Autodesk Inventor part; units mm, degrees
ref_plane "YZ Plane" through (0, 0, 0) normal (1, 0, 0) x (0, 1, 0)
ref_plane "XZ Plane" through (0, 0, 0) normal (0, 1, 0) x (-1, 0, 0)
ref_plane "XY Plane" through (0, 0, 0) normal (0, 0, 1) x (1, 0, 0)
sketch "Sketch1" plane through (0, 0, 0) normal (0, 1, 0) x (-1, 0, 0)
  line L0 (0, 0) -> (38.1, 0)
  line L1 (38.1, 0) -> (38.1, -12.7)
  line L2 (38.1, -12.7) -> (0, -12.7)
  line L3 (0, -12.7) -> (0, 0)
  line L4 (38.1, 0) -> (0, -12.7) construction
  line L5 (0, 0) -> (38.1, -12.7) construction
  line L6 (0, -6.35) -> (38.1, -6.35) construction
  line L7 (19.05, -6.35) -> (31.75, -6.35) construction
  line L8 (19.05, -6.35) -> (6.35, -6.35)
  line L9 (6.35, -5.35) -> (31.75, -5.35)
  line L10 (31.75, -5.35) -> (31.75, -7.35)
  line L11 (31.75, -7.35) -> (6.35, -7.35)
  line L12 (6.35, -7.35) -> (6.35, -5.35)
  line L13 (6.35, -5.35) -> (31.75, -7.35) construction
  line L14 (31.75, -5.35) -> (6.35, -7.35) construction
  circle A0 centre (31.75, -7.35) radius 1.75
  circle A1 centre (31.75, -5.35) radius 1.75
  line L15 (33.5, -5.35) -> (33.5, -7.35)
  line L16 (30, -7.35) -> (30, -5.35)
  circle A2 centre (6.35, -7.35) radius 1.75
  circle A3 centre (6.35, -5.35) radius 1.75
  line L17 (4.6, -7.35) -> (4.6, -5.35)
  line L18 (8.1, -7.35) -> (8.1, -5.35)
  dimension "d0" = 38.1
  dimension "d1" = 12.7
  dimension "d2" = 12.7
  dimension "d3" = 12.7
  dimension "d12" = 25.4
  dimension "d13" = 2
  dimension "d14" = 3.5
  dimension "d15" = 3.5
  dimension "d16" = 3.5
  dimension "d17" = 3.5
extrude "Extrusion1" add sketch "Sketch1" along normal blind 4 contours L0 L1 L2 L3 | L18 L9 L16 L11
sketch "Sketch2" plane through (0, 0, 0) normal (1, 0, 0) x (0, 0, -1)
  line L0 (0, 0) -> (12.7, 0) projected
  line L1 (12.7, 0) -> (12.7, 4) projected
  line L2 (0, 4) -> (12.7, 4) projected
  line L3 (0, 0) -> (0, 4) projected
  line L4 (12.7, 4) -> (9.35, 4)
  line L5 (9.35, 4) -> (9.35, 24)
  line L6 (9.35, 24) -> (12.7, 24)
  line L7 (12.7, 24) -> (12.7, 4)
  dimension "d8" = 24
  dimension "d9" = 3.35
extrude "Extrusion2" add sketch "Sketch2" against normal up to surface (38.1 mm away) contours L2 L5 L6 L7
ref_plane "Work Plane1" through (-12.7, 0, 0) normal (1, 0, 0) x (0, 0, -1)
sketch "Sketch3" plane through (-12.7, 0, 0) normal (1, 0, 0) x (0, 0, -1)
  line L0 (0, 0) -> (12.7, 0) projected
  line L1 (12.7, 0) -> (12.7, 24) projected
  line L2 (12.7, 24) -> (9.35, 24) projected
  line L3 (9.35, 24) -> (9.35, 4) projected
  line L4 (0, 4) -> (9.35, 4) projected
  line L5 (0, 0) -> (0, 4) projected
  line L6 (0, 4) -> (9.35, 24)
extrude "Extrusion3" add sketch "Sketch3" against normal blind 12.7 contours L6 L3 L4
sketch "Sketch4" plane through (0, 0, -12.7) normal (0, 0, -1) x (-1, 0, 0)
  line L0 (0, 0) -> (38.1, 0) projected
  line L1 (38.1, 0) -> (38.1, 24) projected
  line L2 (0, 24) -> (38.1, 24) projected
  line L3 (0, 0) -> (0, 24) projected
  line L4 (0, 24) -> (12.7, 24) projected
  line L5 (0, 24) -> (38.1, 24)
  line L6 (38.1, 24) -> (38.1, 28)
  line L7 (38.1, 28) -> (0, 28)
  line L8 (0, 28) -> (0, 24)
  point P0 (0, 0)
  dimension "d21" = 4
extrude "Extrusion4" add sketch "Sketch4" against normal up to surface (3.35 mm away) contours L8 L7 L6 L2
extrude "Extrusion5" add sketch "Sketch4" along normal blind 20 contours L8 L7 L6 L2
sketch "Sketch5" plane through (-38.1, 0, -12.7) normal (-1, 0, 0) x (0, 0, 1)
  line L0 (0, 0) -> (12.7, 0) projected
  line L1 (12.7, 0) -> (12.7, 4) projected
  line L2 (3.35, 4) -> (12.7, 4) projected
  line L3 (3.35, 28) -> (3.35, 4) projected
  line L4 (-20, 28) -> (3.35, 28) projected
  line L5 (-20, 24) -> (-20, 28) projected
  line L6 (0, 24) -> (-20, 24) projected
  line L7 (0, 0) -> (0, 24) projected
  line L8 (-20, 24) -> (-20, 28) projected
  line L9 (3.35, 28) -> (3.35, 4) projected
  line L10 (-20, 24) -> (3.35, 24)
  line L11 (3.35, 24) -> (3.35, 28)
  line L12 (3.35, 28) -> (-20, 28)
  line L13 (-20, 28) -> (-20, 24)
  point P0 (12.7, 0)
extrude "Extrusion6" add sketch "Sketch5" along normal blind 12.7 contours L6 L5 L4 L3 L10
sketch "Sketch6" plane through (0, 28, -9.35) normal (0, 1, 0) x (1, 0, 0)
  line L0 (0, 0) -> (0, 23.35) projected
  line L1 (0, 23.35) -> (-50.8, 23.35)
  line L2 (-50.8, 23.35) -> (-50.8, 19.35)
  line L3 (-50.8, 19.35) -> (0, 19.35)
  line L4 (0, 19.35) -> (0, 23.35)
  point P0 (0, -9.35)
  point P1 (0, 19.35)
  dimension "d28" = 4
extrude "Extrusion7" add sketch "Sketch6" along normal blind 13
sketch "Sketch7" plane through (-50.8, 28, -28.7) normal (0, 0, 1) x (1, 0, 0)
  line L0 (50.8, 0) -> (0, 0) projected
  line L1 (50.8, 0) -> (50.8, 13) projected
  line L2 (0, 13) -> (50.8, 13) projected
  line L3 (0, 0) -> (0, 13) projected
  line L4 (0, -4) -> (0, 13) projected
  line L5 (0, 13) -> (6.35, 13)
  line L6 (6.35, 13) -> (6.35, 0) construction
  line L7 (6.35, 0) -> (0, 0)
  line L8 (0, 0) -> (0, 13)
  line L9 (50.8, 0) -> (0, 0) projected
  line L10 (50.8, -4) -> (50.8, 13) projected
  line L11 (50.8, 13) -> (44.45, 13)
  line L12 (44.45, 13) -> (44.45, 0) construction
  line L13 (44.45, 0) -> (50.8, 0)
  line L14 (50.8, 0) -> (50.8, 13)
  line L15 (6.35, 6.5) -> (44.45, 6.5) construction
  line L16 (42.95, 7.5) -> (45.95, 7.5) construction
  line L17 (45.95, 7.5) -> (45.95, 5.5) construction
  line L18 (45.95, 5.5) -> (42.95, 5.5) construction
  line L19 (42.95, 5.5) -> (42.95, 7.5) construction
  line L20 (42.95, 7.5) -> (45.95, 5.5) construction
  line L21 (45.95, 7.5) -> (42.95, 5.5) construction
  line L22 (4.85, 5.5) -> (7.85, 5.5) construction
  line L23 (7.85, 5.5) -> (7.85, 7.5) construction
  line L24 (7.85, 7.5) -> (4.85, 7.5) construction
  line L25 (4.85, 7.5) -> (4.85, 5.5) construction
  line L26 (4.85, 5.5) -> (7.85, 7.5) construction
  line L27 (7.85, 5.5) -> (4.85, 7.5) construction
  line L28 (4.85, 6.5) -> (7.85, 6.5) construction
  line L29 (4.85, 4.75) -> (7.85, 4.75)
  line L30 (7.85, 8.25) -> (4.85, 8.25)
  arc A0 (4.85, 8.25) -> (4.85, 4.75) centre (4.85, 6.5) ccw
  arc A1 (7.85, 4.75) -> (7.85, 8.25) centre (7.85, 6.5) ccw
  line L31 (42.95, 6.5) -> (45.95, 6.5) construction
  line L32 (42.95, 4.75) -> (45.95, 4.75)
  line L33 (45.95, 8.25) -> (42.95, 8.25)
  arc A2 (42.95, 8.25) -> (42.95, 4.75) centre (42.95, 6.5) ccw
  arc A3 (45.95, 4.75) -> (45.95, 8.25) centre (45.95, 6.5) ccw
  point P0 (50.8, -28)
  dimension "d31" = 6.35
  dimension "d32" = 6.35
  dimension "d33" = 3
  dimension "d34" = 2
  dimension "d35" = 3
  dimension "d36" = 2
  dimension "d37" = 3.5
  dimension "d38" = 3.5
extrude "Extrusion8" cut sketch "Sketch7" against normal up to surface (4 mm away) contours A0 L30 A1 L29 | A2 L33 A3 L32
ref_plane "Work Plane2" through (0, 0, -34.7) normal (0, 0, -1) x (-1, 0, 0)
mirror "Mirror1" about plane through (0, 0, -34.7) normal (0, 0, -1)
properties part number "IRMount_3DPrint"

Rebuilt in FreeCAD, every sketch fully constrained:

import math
import FreeCAD as App
import Part
import Sketcher

V = App.Vector
Q = App.Units.Quantity


def add_polygon(sketch, points):
    """Adds a closed chain of lines whose ends are joined by coincident constraints."""
    first, n = sketch.GeometryCount, len(points)
    for a, b in zip(points, points[1:] + points[:1]):
        sketch.addGeometry(Part.LineSegment(App.Vector(*a, 0), App.Vector(*b, 0)), False)
    for i in range(n):
        sketch.addConstraint(Sketcher.Constraint("Coincident", first + i, 2, first + (i + 1) % n, 1))

doc = App.newDocument("Part")
body = doc.addObject("PartDesign::Body", "Body")
body.AllowCompound = True

sketch1 = doc.addObject("Sketcher::SketchObject", "Sketch")
body.addObject(sketch1)
sketch1.AttachmentSupport = (doc.XZ_Plane, [""])
sketch1.MapMode = "FlatFace"
add_polygon(sketch1, [(-38.1, 0), (0, 0), (0, -12.7), (-38.1, -12.7)])
sketch1.addGeometry(Part.ArcOfCircle(Part.Circle(V(-31.8, -7.3, 0), V(0, 0, 1), 1.8), math.radians(180), math.radians(360)), False)
sketch1.addGeometry(Part.LineSegment(V(-30, -7.3, 0), V(-30, -5.3, 0)), False)
sketch1.addGeometry(Part.ArcOfCircle(Part.Circle(V(-31.8, -5.3, 0), V(0, 0, 1), 1.8), math.radians(0), math.radians(180)), False)
sketch1.addGeometry(Part.LineSegment(V(-33.5, -5.3, 0), V(-33.5, -7.3, 0)), False)
sketch1.addGeometry(Part.ArcOfCircle(Part.Circle(V(-6.3, -5.3, 0), V(0, 0, 1), 1.8), math.radians(0), math.radians(180)), False)
sketch1.addGeometry(Part.LineSegment(V(-8.1, -5.3, 0), V(-8.1, -7.3, 0)), False)
sketch1.addGeometry(Part.ArcOfCircle(Part.Circle(V(-6.3, -7.3, 0), V(0, 0, 1), 1.8), math.radians(180), math.radians(360)), False)
sketch1.addGeometry(Part.LineSegment(V(-4.6, -7.3, 0), V(-4.6, -5.3, 0)), False)
sketch1.addConstraint([
    Sketcher.Constraint("Tangent", 4, 2, 5, 1),
    Sketcher.Constraint("Tangent", 5, 2, 6, 1),
    Sketcher.Constraint("Tangent", 6, 2, 7, 1),
    Sketcher.Constraint("Tangent", 7, 2, 4, 1),
    Sketcher.Constraint("Tangent", 8, 2, 9, 1),
    Sketcher.Constraint("Tangent", 9, 2, 10, 1),
    Sketcher.Constraint("Tangent", 10, 2, 11, 1),
    Sketcher.Constraint("Tangent", 11, 2, 8, 1),
    Sketcher.Constraint("Horizontal", 0),
    Sketcher.Constraint("Vertical", 1),
    Sketcher.Constraint("Horizontal", 2),
    Sketcher.Constraint("Vertical", 3),
    Sketcher.Constraint("Vertical", 5),
    Sketcher.Constraint("Vertical", 7),
    Sketcher.Constraint("Vertical", 9),
    Sketcher.Constraint("Vertical", 11),
    Sketcher.Constraint("Coincident", 0, 2, -1, 1),
    Sketcher.Constraint("Equal", 6, 8),
    Sketcher.Constraint("Horizontal", 6, 3, 8, 3),
    Sketcher.Constraint("Horizontal", 4, 3, 10, 3),
    Sketcher.Constraint("DistanceX", 0, 1, 0, 2, Q("1.5 in")),
    Sketcher.Constraint("DistanceY", 1, 2, 1, 1, Q("0.5 in")),
    Sketcher.Constraint("DistanceX", 6, 3, 8, 3, Q("1 in")),
    Sketcher.Constraint("Radius", 4, Q("0.0689 in")),
    Sketcher.Constraint("DistanceY", 5, 1, 5, 2, Q("2 mm")),
    Sketcher.Constraint("DistanceX", 4, 3, -1, 1, Q("1.25 in")),
    Sketcher.Constraint("DistanceY", 4, 3, -1, 1, Q("7.35 mm")),
])
pad1 = doc.addObject("PartDesign::Pad", "Pad")
body.addObject(pad1)
pad1.Profile = sketch1
pad1.Length = 4
pad1.Reversed = True

sketch2 = doc.addObject("Sketcher::SketchObject", "Sketch001")
body.addObject(sketch2)
sketch2.AttachmentSupport = (doc.YZ_Plane, [""])
sketch2.MapMode = "FlatFace"
add_polygon(sketch2, [(4, -9.3), (4, -12.7), (24, -12.7), (24, -9.3)])
sketch2.addConstraint([
    Sketcher.Constraint("Vertical", 0),
    Sketcher.Constraint("Horizontal", 1),
    Sketcher.Constraint("Vertical", 2),
    Sketcher.Constraint("Horizontal", 3),
    Sketcher.Constraint("DistanceY", 0, 2, 0, 1, Q("0.1319 in")),
    Sketcher.Constraint("DistanceY", 0, 2, -1, 1, Q("0.5 in")),
    Sketcher.Constraint("DistanceX", -1, 1, 1, 2, Q("24 mm")),
    Sketcher.Constraint("DistanceX", 1, 1, 1, 2, Q("0.7874 in")),
])
pad2 = doc.addObject("PartDesign::Pad", "Pad001")
body.addObject(pad2)
pad2.Profile = sketch2
pad2.Length = Q("1.5 in")
pad2.Reversed = True

sketch3 = doc.addObject("Sketcher::SketchObject", "Sketch002")
body.addObject(sketch3)
sketch3.AttachmentSupport = (doc.YZ_Plane, [""])
sketch3.MapMode = "FlatFace"
sketch3.AttachmentOffset = App.Placement(V(0, 0, -0.5 * 25.4), App.Rotation())
add_polygon(sketch3, [(24, -9), (4, 0), (4, -9)])
sketch3.addConstraint([
    Sketcher.Constraint("Vertical", 1),
    Sketcher.Constraint("Horizontal", 2),
    Sketcher.Constraint("PointOnObject", 0, 2, -1),
    Sketcher.Constraint("DistanceX", 2, 1, 2, 2, Q("0.7874 in")),
    Sketcher.Constraint("DistanceY", 1, 2, 1, 1, Q("0.3681 in")),
    Sketcher.Constraint("DistanceX", -1, 1, 0, 2, Q("4 mm")),
])
pad3 = doc.addObject("PartDesign::Pad", "Pad002")
body.addObject(pad3)
pad3.Profile = sketch3
pad3.Length = Q("0.5 in")
pad3.Reversed = True

sketch4 = doc.addObject("Sketcher::SketchObject", "Sketch003")
body.addObject(sketch4)
sketch4.AttachmentSupport = (doc.XY_Plane, [""])
sketch4.MapMode = "FlatFace"
sketch4.AttachmentOffset = App.Placement(V(0, 0, -0.5 * 25.4), App.Rotation())
add_polygon(sketch4, [(0, 28), (0, 24), (-38.1, 24), (-38.1, 28)])
sketch4.addConstraint([
    Sketcher.Constraint("Vertical", 0),
    Sketcher.Constraint("Horizontal", 1),
    Sketcher.Constraint("Vertical", 2),
    Sketcher.Constraint("Horizontal", 3),
    Sketcher.Constraint("PointOnObject", 0, 2, -2),
    Sketcher.Constraint("DistanceX", 1, 2, 1, 1, Q("1.5 in")),
    Sketcher.Constraint("DistanceY", 0, 2, 0, 1, Q("4 mm")),
    Sketcher.Constraint("DistanceY", -1, 1, 0, 2, Q("24 mm")),
])
pad4 = doc.addObject("PartDesign::Pad", "Pad003")
body.addObject(pad4)
pad4.Profile = sketch4
pad4.Length = Q("0.1318898 in")

sketch5 = doc.addObject("Sketcher::SketchObject", "Sketch004")
body.addObject(sketch5)
sketch5.AttachmentSupport = (doc.XY_Plane, [""])
sketch5.MapMode = "FlatFace"
sketch5.AttachmentOffset = App.Placement(V(0, 0, -0.5 * 25.4), App.Rotation())
add_polygon(sketch5, [(0, 28), (0, 24), (-38.1, 24), (-38.1, 28)])
sketch5.addConstraint([
    Sketcher.Constraint("Vertical", 0),
    Sketcher.Constraint("Horizontal", 1),
    Sketcher.Constraint("Vertical", 2),
    Sketcher.Constraint("Horizontal", 3),
    Sketcher.Constraint("PointOnObject", 0, 2, -2),
    Sketcher.Constraint("DistanceX", 1, 2, 1, 1, Q("1.5 in")),
    Sketcher.Constraint("DistanceY", 0, 2, 0, 1, Q("4 mm")),
    Sketcher.Constraint("DistanceY", -1, 1, 0, 2, Q("24 mm")),
])
pad5 = doc.addObject("PartDesign::Pad", "Pad004")
body.addObject(pad5)
pad5.Profile = sketch5
pad5.Length = Q("0.7874016 in")
pad5.Reversed = True

sketch6 = doc.addObject("Sketcher::SketchObject", "Sketch005")
body.addObject(sketch6)
sketch6.AttachmentSupport = (doc.YZ_Plane, [""])
sketch6.MapMode = "FlatFace"
sketch6.AttachmentOffset = App.Placement(V(0, 0, -1.5 * 25.4), App.Rotation())
add_polygon(sketch6, [(24, -32.7), (24, -9.3), (28, -9.3), (28, -32.7)])
sketch6.addConstraint([
    Sketcher.Constraint("Vertical", 0),
    Sketcher.Constraint("Horizontal", 1),
    Sketcher.Constraint("Vertical", 2),
    Sketcher.Constraint("Horizontal", 3),
    Sketcher.Constraint("DistanceY", 0, 1, 0, 2, Q("0.9193 in")),
    Sketcher.Constraint("DistanceX", 1, 1, 1, 2, Q("4 mm")),
    Sketcher.Constraint("DistanceY", 0, 2, -1, 1, Q("0.3681 in")),
    Sketcher.Constraint("DistanceX", -1, 1, 0, 2, Q("24 mm")),
])
pad6 = doc.addObject("PartDesign::Pad", "Pad005")
body.addObject(pad6)
pad6.Profile = sketch6
pad6.Length = Q("0.5 in")
pad6.Reversed = True

sketch7 = doc.addObject("Sketcher::SketchObject", "Sketch006")
body.addObject(sketch7)
sketch7.AttachmentSupport = (doc.XZ_Plane, [""])
sketch7.MapMode = "FlatFace"
sketch7.AttachmentOffset = App.Placement(V(0, 0, -28), App.Rotation())
add_polygon(sketch7, [(-50.8, -28.7), (0, -28.7), (0, -32.7), (-50.8, -32.7)])
sketch7.addConstraint([
    Sketcher.Constraint("Horizontal", 0),
    Sketcher.Constraint("Vertical", 1),
    Sketcher.Constraint("Horizontal", 2),
    Sketcher.Constraint("Vertical", 3),
    Sketcher.Constraint("PointOnObject", 0, 2, -2),
    Sketcher.Constraint("DistanceX", 0, 1, 0, 2, Q("2 in")),
    Sketcher.Constraint("DistanceY", 1, 2, 1, 1, Q("4 mm")),
    Sketcher.Constraint("DistanceY", 1, 2, -1, 1, Q("1.2874 in")),
])
pad7 = doc.addObject("PartDesign::Pad", "Pad006")
body.addObject(pad7)
pad7.Profile = sketch7
pad7.Length = Q("0.511811 in")
pad7.Reversed = True

sketch8 = doc.addObject("Sketcher::SketchObject", "Sketch007")
body.addObject(sketch8)
sketch8.AttachmentSupport = (doc.XY_Plane, [""])
sketch8.MapMode = "FlatFace"
sketch8.AttachmentOffset = App.Placement(V(0, 0, -28.7), App.Rotation())
sketch8.addGeometry([
    Part.ArcOfCircle(Part.Circle(V(-46, 34.5, 0), V(0, 0, 1), 1.8), math.radians(90), math.radians(270)),
    Part.LineSegment(V(-46, 32.8, 0), V(-43, 32.8, 0)),
    Part.ArcOfCircle(Part.Circle(V(-43, 34.5, 0), V(0, 0, 1), 1.8), math.radians(-90), math.radians(90)),
    Part.LineSegment(V(-43, 36.2, 0), V(-46, 36.2, 0)),
    Part.ArcOfCircle(Part.Circle(V(-7.8, 34.5, 0), V(0, 0, 1), 1.8), math.radians(90), math.radians(270)),
    Part.LineSegment(V(-7.8, 32.8, 0), V(-4.8, 32.8, 0)),
    Part.ArcOfCircle(Part.Circle(V(-4.8, 34.5, 0), V(0, 0, 1), 1.8), math.radians(-90), math.radians(90)),
    Part.LineSegment(V(-4.8, 36.2, 0), V(-7.8, 36.2, 0)),
], False)
sketch8.addConstraint([
    Sketcher.Constraint("Tangent", 0, 2, 1, 1),
    Sketcher.Constraint("Tangent", 1, 2, 2, 1),
    Sketcher.Constraint("Tangent", 2, 2, 3, 1),
    Sketcher.Constraint("Tangent", 3, 2, 0, 1),
    Sketcher.Constraint("Tangent", 4, 2, 5, 1),
    Sketcher.Constraint("Tangent", 5, 2, 6, 1),
    Sketcher.Constraint("Tangent", 6, 2, 7, 1),
    Sketcher.Constraint("Tangent", 7, 2, 4, 1),
    Sketcher.Constraint("Horizontal", 1),
    Sketcher.Constraint("Horizontal", 3),
    Sketcher.Constraint("Horizontal", 5),
    Sketcher.Constraint("Horizontal", 7),
    Sketcher.Constraint("Equal", 2, 4),
    Sketcher.Constraint("Horizontal", 2, 3, 4, 3),
    Sketcher.Constraint("Equal", 3, 5),
    Sketcher.Constraint("Radius", 0, Q("0.0689 in")),
    Sketcher.Constraint("DistanceX", 1, 1, 1, 2, Q("0.1181 in")),
    Sketcher.Constraint("DistanceX", 0, 3, 4, 3, Q("1.5 in")),
    Sketcher.Constraint("DistanceX", 0, 3, -1, 1, Q("45.95 mm")),
    Sketcher.Constraint("DistanceY", -1, 1, 0, 3, Q("34.5 mm")),
])
pocket1 = doc.addObject("PartDesign::Pocket", "Pocket")
body.addObject(pocket1)
pocket1.Profile = sketch8
pocket1.Length = 4
doc.recompute()

datumplane = doc.addObject("PartDesign::Plane", "DatumPlane")
body.addObject(datumplane)
datumplane.AttachmentSupport = (doc.XY_Plane, [""])
datumplane.MapMode = "FlatFace"
datumplane.AttachmentOffset = App.Placement(V(0, 0, -34.7), App.Rotation())
mirrored = doc.addObject("PartDesign::Mirrored", "Mirrored")
body.addObject(mirrored)
mirrored.TransformMode = "Transform body"
mirrored.MirrorPlane = (datumplane, [""])
body.Tip = mirrored

doc.recompute()
